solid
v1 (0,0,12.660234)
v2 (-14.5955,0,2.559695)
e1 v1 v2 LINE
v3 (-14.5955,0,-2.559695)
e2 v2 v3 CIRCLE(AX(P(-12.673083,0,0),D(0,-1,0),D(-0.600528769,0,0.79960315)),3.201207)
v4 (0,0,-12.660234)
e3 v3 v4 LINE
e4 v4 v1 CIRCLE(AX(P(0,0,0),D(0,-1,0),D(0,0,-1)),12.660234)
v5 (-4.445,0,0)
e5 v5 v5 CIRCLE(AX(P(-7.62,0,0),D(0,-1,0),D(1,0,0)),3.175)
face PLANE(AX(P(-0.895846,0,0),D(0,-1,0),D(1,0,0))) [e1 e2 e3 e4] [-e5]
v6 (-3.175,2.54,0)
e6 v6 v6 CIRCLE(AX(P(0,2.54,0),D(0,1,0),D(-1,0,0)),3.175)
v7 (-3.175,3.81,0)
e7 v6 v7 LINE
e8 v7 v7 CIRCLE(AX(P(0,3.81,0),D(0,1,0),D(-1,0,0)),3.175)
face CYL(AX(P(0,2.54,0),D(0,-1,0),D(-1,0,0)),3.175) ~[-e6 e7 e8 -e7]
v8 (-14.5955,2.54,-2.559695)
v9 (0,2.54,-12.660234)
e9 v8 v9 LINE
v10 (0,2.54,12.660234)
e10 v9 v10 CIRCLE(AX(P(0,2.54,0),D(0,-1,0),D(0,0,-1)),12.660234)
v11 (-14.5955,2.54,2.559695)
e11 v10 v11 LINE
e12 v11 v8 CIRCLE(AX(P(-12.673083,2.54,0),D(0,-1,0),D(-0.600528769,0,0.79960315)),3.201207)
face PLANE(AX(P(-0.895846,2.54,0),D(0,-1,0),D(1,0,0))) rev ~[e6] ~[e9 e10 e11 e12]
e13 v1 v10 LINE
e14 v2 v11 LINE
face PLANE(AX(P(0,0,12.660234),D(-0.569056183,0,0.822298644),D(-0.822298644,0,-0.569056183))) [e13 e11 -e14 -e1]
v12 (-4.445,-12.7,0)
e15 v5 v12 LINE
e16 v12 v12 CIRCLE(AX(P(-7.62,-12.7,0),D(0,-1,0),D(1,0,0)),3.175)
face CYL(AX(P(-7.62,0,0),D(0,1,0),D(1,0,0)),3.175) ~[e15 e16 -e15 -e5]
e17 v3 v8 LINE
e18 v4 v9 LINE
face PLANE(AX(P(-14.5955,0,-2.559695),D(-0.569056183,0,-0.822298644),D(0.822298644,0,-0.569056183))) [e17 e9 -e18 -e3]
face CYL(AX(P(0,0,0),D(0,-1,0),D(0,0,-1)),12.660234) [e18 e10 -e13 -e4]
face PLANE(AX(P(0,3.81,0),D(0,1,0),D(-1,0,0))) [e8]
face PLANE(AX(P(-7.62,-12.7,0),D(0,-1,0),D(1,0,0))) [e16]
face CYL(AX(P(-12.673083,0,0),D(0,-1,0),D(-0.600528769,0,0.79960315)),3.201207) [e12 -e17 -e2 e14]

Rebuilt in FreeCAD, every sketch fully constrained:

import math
import FreeCAD as App
import Part
import Sketcher
from FreeCAD import Vector
Q = App.Units.Quantity

doc = App.newDocument("Part")
body = doc.addObject("PartDesign::Body", "Body")

sketch1 = doc.addObject("Sketcher::SketchObject", "Sketch")
body.addObject(sketch1)
sketch1.AttachmentSupport = (doc.XZ_Plane, [""])
sketch1.MapMode = "FlatFace"
sketch1.addGeometry(Part.Circle(Vector(-7.6, 0, 0), Vector(0, 0, 1), 3.2), False)
sketch1.addConstraint(Sketcher.Constraint("PointOnObject", 0, 3, -1))
sketch1.addConstraint(Sketcher.Constraint("Diameter", 0, Q("0.25 in")))
sketch1.addConstraint(Sketcher.Constraint("DistanceX", 0, 3, -1, 1, Q("0.3 in")))
pad1 = doc.addObject("PartDesign::Pad", "Pad")
body.addObject(pad1)
pad1.Profile = sketch1
pad1.Length = Q("0.5 in")

sketch2 = doc.addObject("Sketcher::SketchObject", "Sketch001")
body.addObject(sketch2)
sketch2.AttachmentSupport = (doc.XZ_Plane, [""])
sketch2.MapMode = "FlatFace"
sketch2.addGeometry(Part.LineSegment(Vector(-14.6, -2.6, 0), Vector(0, -12.7, 0)), False)
sketch2.addGeometry(Part.ArcOfCircle(Part.Circle(Vector(0, 0, 0), Vector(0, 0, 1), 12.7), math.radians(-90), math.radians(90)), False)
sketch2.addGeometry(Part.LineSegment(Vector(0, 12.7, 0), Vector(-14.6, 2.6, 0)), False)
sketch2.addGeometry(Part.ArcOfCircle(Part.Circle(Vector(-12.7, 0, 0), Vector(0, 0, 1), 3.2), math.radians(127), math.radians(233)), False)
sketch2.addConstraint(Sketcher.Constraint("Coincident", 0, 2, 1, 1))
sketch2.addConstraint(Sketcher.Constraint("Coincident", 1, 2, 2, 1))
sketch2.addConstraint(Sketcher.Constraint("Coincident", 2, 2, 3, 1))
sketch2.addConstraint(Sketcher.Constraint("Coincident", 3, 2, 0, 1))
sketch2.addConstraint(Sketcher.Constraint("Coincident", 1, 3, -1, 1))
sketch2.addConstraint(Sketcher.Constraint("Symmetric", 2, 2, 3, 2, -1))
sketch2.addConstraint(Sketcher.Constraint("PointOnObject", 0, 2, -2))
sketch2.addConstraint(Sketcher.Constraint("PointOnObject", 1, 2, -2))
sketch2.addConstraint(Sketcher.Constraint("Radius", 1, Q("12.660234 mm")))
sketch2.addConstraint(Sketcher.Constraint("Radius", 3, Q("3.201207 mm")))
sketch2.addConstraint(Sketcher.Constraint("DistanceX", 2, 2, -1, 1, Q("14.5955 mm")))
sketch2.addConstraint(Sketcher.Constraint("DistanceY", 2, 2, 1, 2, Q("10.100539 mm")))
pad2 = doc.addObject("PartDesign::Pad", "Pad001")
body.addObject(pad2)
pad2.Profile = sketch2
pad2.Length = Q("0.1 in")
pad2.Reversed = True

sketch3 = doc.addObject("Sketcher::SketchObject", "Sketch002")
body.addObject(sketch3)
sketch3.AttachmentSupport = (doc.XZ_Plane, [""])
sketch3.MapMode = "FlatFace"
sketch3.AttachmentOffset = App.Placement(Vector(0, 0, -0.1 * 25.4), App.Rotation())
sketch3.addGeometry(Part.Circle(Vector(0, 0, 0), Vector(0, 0, 1), 3.2), False)
sketch3.addConstraint(Sketcher.Constraint("Coincident", 0, 3, -1, 1))
sketch3.addConstraint(Sketcher.Constraint("Diameter", 0, Q("0.25 in")))
pad3 = doc.addObject("PartDesign::Pad", "Pad002")
body.addObject(pad3)
pad3.Profile = sketch3
pad3.Length = Q("0.05 in")
pad3.Reversed = True

doc.recompute()
